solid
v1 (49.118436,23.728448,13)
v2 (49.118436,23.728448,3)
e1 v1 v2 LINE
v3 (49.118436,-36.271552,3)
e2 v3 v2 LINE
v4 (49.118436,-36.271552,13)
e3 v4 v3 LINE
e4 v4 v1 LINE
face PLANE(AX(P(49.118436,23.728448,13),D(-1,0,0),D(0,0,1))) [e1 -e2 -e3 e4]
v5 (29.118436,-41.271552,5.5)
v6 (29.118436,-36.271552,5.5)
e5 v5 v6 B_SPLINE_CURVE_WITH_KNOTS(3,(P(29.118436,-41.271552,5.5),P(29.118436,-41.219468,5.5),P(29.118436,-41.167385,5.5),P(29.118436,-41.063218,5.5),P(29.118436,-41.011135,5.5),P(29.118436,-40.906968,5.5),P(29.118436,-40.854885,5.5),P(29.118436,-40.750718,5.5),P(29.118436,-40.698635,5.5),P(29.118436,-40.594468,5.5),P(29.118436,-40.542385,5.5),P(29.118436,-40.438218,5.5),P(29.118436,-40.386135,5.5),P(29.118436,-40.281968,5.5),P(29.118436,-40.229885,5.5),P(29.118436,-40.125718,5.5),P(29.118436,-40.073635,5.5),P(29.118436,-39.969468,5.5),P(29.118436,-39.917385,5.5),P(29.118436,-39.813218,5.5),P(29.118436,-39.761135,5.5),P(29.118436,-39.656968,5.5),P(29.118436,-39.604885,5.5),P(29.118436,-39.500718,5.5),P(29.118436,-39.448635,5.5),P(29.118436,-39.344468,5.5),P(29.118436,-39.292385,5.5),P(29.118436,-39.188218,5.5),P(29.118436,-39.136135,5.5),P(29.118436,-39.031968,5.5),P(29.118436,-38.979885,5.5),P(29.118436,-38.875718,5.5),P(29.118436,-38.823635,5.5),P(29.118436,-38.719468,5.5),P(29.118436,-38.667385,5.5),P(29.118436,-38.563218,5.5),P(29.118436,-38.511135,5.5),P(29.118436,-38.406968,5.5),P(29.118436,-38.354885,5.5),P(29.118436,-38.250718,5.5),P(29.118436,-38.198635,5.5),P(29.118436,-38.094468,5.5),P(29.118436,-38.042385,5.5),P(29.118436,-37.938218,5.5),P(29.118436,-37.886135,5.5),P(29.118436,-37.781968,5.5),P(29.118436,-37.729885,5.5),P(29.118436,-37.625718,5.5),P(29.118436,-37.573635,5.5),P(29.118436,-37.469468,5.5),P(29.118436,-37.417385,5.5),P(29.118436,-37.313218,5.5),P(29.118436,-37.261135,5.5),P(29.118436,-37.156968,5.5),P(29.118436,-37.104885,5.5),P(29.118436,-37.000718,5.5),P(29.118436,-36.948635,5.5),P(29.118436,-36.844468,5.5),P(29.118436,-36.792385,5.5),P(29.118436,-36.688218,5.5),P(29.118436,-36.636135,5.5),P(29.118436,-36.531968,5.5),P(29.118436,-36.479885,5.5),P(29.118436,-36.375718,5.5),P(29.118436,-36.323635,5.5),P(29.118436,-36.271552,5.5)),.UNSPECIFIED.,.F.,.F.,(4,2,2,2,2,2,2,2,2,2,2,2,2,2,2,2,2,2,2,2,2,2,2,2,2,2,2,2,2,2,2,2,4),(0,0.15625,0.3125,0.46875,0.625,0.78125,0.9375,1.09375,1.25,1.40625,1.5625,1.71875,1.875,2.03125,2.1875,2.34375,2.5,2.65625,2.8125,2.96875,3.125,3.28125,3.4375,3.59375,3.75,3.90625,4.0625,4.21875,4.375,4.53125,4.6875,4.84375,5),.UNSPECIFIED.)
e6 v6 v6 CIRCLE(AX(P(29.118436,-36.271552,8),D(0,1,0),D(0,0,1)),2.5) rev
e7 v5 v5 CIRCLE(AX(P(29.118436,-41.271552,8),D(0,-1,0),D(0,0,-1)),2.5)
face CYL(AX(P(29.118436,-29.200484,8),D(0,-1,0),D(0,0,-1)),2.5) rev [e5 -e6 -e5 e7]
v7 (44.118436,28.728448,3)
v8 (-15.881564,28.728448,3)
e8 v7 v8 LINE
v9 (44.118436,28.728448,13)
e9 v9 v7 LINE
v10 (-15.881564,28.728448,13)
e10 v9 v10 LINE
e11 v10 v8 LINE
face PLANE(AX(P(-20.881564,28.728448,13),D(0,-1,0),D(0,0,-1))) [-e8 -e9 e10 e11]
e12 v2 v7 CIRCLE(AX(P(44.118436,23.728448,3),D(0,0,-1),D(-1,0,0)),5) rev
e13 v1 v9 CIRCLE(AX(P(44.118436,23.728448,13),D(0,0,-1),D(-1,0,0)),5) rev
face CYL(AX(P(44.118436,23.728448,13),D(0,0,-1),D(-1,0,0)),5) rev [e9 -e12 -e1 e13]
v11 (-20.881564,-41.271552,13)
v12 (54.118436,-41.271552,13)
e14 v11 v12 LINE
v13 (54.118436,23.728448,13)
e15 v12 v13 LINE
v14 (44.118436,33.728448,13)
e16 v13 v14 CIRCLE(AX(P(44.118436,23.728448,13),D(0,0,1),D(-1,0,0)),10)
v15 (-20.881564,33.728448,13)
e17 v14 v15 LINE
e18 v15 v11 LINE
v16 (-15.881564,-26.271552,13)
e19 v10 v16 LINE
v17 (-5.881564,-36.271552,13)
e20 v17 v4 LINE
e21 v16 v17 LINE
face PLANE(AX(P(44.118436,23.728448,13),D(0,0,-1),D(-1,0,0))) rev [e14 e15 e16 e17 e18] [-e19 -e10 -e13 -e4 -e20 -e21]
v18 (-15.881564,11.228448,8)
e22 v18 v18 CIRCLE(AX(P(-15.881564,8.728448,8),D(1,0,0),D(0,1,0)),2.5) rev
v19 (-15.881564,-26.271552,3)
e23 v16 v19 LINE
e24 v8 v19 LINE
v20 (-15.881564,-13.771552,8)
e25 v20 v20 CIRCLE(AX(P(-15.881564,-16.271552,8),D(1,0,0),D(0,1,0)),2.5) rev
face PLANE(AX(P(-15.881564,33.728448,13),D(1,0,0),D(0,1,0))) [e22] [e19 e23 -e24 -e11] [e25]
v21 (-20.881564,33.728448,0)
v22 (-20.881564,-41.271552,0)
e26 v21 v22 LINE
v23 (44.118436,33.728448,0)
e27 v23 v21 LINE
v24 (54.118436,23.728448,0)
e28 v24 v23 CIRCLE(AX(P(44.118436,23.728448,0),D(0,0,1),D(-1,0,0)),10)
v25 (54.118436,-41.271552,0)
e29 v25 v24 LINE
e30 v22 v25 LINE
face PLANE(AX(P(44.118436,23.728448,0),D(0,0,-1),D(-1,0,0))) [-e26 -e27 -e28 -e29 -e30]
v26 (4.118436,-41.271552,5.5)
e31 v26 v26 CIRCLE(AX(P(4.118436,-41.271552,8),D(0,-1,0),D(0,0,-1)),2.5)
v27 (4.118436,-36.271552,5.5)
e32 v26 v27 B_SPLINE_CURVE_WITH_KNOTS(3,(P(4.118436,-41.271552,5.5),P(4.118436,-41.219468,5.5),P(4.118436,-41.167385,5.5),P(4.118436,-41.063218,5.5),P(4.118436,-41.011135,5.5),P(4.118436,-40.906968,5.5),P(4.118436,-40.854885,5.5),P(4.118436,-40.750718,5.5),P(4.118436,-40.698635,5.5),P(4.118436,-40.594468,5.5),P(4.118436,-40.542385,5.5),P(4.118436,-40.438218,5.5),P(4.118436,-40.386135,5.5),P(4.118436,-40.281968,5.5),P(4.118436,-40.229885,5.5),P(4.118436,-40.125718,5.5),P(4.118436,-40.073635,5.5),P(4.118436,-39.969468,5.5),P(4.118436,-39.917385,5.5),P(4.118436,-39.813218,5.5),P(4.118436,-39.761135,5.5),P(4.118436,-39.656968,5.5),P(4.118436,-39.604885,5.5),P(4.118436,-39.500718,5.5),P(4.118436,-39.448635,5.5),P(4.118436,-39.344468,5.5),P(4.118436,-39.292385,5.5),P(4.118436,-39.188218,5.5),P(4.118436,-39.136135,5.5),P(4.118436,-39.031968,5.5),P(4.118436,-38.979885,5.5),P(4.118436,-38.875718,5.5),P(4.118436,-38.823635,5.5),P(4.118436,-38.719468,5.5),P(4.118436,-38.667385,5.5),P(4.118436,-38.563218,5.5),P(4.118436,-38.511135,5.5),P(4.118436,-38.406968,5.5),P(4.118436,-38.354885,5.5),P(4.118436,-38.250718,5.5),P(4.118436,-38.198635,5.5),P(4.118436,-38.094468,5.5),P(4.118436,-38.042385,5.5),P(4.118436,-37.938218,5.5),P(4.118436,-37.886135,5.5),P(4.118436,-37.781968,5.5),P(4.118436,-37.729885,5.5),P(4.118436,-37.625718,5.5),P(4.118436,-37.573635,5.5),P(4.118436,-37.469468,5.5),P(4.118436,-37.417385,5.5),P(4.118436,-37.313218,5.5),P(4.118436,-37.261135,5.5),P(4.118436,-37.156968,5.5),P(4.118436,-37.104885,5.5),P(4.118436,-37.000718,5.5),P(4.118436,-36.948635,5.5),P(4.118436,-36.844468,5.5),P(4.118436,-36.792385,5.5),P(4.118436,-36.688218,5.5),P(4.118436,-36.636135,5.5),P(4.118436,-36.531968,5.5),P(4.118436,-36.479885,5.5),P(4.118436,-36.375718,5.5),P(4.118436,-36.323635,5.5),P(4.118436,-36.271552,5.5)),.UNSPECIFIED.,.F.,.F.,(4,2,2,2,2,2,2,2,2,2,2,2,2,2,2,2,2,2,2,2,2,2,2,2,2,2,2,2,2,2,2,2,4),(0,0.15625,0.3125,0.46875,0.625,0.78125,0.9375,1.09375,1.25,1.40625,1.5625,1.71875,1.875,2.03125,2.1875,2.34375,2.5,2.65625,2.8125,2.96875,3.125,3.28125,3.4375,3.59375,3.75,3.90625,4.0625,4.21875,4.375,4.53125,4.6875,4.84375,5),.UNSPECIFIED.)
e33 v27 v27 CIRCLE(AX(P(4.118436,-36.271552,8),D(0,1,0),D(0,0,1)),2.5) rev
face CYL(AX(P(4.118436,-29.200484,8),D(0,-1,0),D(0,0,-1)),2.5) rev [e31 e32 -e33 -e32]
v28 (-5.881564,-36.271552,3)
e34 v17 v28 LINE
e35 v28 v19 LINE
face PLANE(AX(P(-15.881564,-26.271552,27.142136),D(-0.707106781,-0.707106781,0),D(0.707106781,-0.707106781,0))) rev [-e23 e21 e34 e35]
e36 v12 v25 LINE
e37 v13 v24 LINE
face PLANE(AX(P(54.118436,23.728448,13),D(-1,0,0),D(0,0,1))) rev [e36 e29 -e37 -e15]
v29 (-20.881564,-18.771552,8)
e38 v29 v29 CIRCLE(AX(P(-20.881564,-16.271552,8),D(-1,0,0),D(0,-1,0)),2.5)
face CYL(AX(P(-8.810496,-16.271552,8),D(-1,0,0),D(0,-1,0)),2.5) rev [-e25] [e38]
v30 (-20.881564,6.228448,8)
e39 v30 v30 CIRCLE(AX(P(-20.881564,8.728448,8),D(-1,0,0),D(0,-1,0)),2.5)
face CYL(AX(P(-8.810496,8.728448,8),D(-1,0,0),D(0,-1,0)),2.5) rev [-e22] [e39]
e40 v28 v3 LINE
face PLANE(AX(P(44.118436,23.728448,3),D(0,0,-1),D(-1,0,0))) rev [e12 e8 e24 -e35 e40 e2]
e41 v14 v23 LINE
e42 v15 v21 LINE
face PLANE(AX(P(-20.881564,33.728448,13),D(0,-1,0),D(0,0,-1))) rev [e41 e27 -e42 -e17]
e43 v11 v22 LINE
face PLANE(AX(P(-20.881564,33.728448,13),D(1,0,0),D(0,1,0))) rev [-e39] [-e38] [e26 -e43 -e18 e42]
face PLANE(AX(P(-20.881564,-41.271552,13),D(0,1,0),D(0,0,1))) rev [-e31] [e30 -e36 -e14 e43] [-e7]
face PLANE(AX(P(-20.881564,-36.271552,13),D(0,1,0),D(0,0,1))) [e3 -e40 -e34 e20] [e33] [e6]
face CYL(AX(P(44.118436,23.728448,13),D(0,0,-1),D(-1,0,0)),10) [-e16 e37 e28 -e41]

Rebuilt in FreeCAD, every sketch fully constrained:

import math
import FreeCAD as App
import Part
import Sketcher
from FreeCAD import Vector
Q = App.Units.Quantity


def faces_at(feature, points):
    """Names of the faces that lie closest to the given points."""
    faces = feature.Shape.Faces
    near = lambda p: min(range(len(faces)), key=lambda i: faces[i].distToShape(Part.Vertex(*p))[0])
    return sorted({f"Face{near(p) + 1}" for p in points})


def add_polygon(sketch, points):
    """Adds a closed chain of lines whose ends are joined by coincident constraints."""
    first, n = sketch.GeometryCount, len(points)
    for a, b in zip(points, points[1:] + points[:1]):
        sketch.addGeometry(Part.LineSegment(App.Vector(*a, 0), App.Vector(*b, 0)), False)
    for i in range(n):
        sketch.addConstraint(Sketcher.Constraint("Coincident", first + i, 2, first + (i + 1) % n, 1))

doc = App.newDocument("Part")
body = doc.addObject("PartDesign::Body", "Body")

# Sketch on XY plane
sketch1 = body.newObject("Sketcher::SketchObject", "Sketch")
sketch1.AttachmentSupport = (doc.getObject("XY_Plane"), [""])
sketch1.MapMode = "FlatFace"
sketch1.addGeometry(Part.LineSegment(Vector(44, 34, 0), Vector(-21, 34, 0)), False)
sketch1.addGeometry(Part.LineSegment(Vector(-21, 34, 0), Vector(-21, -41, 0)), False)
sketch1.addGeometry(Part.LineSegment(Vector(-21, -41, 0), Vector(54, -41, 0)), False)
sketch1.addGeometry(Part.LineSegment(Vector(54, -41, 0), Vector(54, 24, 0)), False)
sketch1.addGeometry(Part.ArcOfCircle(Part.Circle(Vector(44, 24, 0), Vector(0, 0, 1), 10), math.radians(0), math.radians(90)), False)
sketch1.addConstraint(Sketcher.Constraint("Coincident", 0, 2, 1, 1))
sketch1.addConstraint(Sketcher.Constraint("Coincident", 1, 2, 2, 1))
sketch1.addConstraint(Sketcher.Constraint("Coincident", 2, 2, 3, 1))
sketch1.addConstraint(Sketcher.Constraint("Tangent", 3, 2, 4, 1))
sketch1.addConstraint(Sketcher.Constraint("Tangent", 4, 2, 0, 1))
sketch1.addConstraint(Sketcher.Constraint("Horizontal", 0))
sketch1.addConstraint(Sketcher.Constraint("Vertical", 1))
sketch1.addConstraint(Sketcher.Constraint("Horizontal", 2))
sketch1.addConstraint(Sketcher.Constraint("Vertical", 3))
sketch1.addConstraint(Sketcher.Constraint("Equal", 2, 1))
sketch1.addConstraint(Sketcher.Constraint("Radius", 4, Q("10 mm")))
sketch1.addConstraint(Sketcher.Constraint("DistanceX", 0, 2, 0, 1, Q("65 mm")))
sketch1.addConstraint(Sketcher.Constraint("DistanceY", -1, 1, 4, 3, Q("23.728448 mm")))
sketch1.addConstraint(Sketcher.Constraint("DistanceX", -1, 1, 4, 3, Q("44.118436 mm")))
pad1 = body.newObject("PartDesign::Pad", "Pad")
pad1.Profile = sketch1
pad1.Length = 13
doc.recompute()

thickness = body.newObject("PartDesign::Thickness", "Thickness")
thickness.Base = (pad1, faces_at(pad1, [(16.618, -3.772, 13)]))
thickness.Value = 5
thickness.Reversed = True
thickness.Join = "Intersection"

# Sketch on XY plane
sketch2 = body.newObject("Sketcher::SketchObject", "Sketch001")
sketch2.AttachmentSupport = (doc.getObject("XY_Plane"), [""])
sketch2.MapMode = "FlatFace"
sketch2.AttachmentOffset = App.Placement(Vector(0, 0, 5), App.Rotation())
sketch2.addGeometry(Part.LineSegment(Vector(-16, 29, 0), Vector(44, 29, 0)), False)
sketch2.addGeometry(Part.ArcOfCircle(Part.Circle(Vector(44, 24, 0), Vector(0, 0, 1), 5), math.radians(0), math.radians(90)), False)
sketch2.addGeometry(Part.LineSegment(Vector(49, 24, 0), Vector(49, -36, 0)), False)
sketch2.addGeometry(Part.LineSegment(Vector(49, -36, 0), Vector(-16, -36, 0)), False)
sketch2.addGeometry(Part.LineSegment(Vector(-16, -36, 0), Vector(-16, 29, 0)), False)
sketch2.addConstraint(Sketcher.Constraint("Tangent", 0, 2, 1, 2))
sketch2.addConstraint(Sketcher.Constraint("Tangent", 1, 1, 2, 1))
sketch2.addConstraint(Sketcher.Constraint("Coincident", 2, 2, 3, 1))
sketch2.addConstraint(Sketcher.Constraint("Coincident", 3, 2, 4, 1))
sketch2.addConstraint(Sketcher.Constraint("Coincident", 4, 2, 0, 1))
sketch2.addConstraint(Sketcher.Constraint("Horizontal", 0))
sketch2.addConstraint(Sketcher.Constraint("Vertical", 2))
sketch2.addConstraint(Sketcher.Constraint("Horizontal", 3))
sketch2.addConstraint(Sketcher.Constraint("Vertical", 4))
sketch2.addConstraint(Sketcher.Constraint("Equal", 0, 2))
sketch2.addConstraint(Sketcher.Constraint("Radius", 1, Q("5 mm")))
sketch2.addConstraint(Sketcher.Constraint("DistanceX", 0, 1, 0, 2, Q("60 mm")))
sketch2.addConstraint(Sketcher.Constraint("DistanceY", -1, 1, 1, 3, Q("23.728448 mm")))
sketch2.addConstraint(Sketcher.Constraint("DistanceX", -1, 1, 1, 3, Q("44.118436 mm")))
pocket1 = body.newObject("PartDesign::Pocket", "Pocket")
pocket1.Profile = sketch2
pocket1.Length = 2

# Sketch on YZ plane
sketch3 = body.newObject("Sketcher::SketchObject", "Sketch002")
sketch3.AttachmentSupport = (doc.getObject("YZ_Plane"), [""])
sketch3.MapMode = "FlatFace"
sketch3.AttachmentOffset = App.Placement(Vector(0, 0, -20.881564), App.Rotation())
sketch3.addGeometry(Part.Circle(Vector(-16.3, 8, 0), Vector(0, 0, 1), 2.5), False)
sketch3.addGeometry(Part.Circle(Vector(8.7, 8, 0), Vector(0, 0, 1), 2.5), False)
sketch3.addConstraint(Sketcher.Constraint("Equal", 0, 1))
sketch3.addConstraint(Sketcher.Constraint("Horizontal", 0, 3, 1, 3))
sketch3.addConstraint(Sketcher.Constraint("Diameter", 0, Q("5 mm")))
sketch3.addConstraint(Sketcher.Constraint("DistanceY", -1, 1, 0, 3, Q("8 mm")))
sketch3.addConstraint(Sketcher.Constraint("DistanceX", 0, 3, 1, 3, Q("25 mm")))
sketch3.addConstraint(Sketcher.Constraint("DistanceX", 0, 3, -1, 1, Q("16.271552 mm")))
pocket2 = body.newObject("PartDesign::Pocket", "Pocket001")
pocket2.Profile = sketch3
pocket2.Length = 5
pocket2.Reversed = True

# Sketch on XZ plane
sketch4 = body.newObject("Sketcher::SketchObject", "Sketch003")
sketch4.AttachmentSupport = (doc.getObject("XZ_Plane"), [""])
sketch4.MapMode = "FlatFace"
sketch4.AttachmentOffset = App.Placement(Vector(0, 0, 41.271552), App.Rotation())
sketch4.addGeometry(Part.Circle(Vector(4.1, 8, 0), Vector(0, 0, 1), 2.5), False)
sketch4.addGeometry(Part.Circle(Vector(29.1, 8, 0), Vector(0, 0, 1), 2.5), False)
sketch4.addConstraint(Sketcher.Constraint("Equal", 0, 1))
sketch4.addConstraint(Sketcher.Constraint("Horizontal", 0, 3, 1, 3))
sketch4.addConstraint(Sketcher.Constraint("Diameter", 0, Q("5 mm")))
sketch4.addConstraint(Sketcher.Constraint("DistanceY", -1, 1, 0, 3, Q("8 mm")))
sketch4.addConstraint(Sketcher.Constraint("DistanceX", 0, 3, 1, 3, Q("25 mm")))
sketch4.addConstraint(Sketcher.Constraint("DistanceX", -1, 1, 0, 3, Q("4.118436 mm")))
pocket3 = body.newObject("PartDesign::Pocket", "Pocket002")
pocket3.Profile = sketch4
pocket3.Length = 5

# Sketch on XY plane
sketch5 = body.newObject("Sketcher::SketchObject", "Sketch004")
sketch5.AttachmentSupport = (doc.getObject("XY_Plane"), [""])
sketch5.MapMode = "FlatFace"
sketch5.AttachmentOffset = App.Placement(Vector(0, 0, 3), App.Rotation())
add_polygon(sketch5, [(-6, -36), (-16, -26), (-16, -36)])  # lines 0-2
sketch5.addConstraint(Sketcher.Constraint("Vertical", 1))
sketch5.addConstraint(Sketcher.Constraint("Horizontal", 2))
sketch5.addConstraint(Sketcher.Constraint("Equal", 2, 1))
sketch5.addConstraint(Sketcher.Constraint("DistanceX", 2, 1, 2, 2, Q("10 mm")))
sketch5.addConstraint(Sketcher.Constraint("DistanceY", 0, 2, -1, 1, Q("26.271552 mm")))
sketch5.addConstraint(Sketcher.Constraint("DistanceX", 0, 2, -1, 1, Q("15.881564 mm")))
pad2 = body.newObject("PartDesign::Pad", "Pad001")
pad2.Profile = sketch5
pad2.Length = 10

doc.recompute()
